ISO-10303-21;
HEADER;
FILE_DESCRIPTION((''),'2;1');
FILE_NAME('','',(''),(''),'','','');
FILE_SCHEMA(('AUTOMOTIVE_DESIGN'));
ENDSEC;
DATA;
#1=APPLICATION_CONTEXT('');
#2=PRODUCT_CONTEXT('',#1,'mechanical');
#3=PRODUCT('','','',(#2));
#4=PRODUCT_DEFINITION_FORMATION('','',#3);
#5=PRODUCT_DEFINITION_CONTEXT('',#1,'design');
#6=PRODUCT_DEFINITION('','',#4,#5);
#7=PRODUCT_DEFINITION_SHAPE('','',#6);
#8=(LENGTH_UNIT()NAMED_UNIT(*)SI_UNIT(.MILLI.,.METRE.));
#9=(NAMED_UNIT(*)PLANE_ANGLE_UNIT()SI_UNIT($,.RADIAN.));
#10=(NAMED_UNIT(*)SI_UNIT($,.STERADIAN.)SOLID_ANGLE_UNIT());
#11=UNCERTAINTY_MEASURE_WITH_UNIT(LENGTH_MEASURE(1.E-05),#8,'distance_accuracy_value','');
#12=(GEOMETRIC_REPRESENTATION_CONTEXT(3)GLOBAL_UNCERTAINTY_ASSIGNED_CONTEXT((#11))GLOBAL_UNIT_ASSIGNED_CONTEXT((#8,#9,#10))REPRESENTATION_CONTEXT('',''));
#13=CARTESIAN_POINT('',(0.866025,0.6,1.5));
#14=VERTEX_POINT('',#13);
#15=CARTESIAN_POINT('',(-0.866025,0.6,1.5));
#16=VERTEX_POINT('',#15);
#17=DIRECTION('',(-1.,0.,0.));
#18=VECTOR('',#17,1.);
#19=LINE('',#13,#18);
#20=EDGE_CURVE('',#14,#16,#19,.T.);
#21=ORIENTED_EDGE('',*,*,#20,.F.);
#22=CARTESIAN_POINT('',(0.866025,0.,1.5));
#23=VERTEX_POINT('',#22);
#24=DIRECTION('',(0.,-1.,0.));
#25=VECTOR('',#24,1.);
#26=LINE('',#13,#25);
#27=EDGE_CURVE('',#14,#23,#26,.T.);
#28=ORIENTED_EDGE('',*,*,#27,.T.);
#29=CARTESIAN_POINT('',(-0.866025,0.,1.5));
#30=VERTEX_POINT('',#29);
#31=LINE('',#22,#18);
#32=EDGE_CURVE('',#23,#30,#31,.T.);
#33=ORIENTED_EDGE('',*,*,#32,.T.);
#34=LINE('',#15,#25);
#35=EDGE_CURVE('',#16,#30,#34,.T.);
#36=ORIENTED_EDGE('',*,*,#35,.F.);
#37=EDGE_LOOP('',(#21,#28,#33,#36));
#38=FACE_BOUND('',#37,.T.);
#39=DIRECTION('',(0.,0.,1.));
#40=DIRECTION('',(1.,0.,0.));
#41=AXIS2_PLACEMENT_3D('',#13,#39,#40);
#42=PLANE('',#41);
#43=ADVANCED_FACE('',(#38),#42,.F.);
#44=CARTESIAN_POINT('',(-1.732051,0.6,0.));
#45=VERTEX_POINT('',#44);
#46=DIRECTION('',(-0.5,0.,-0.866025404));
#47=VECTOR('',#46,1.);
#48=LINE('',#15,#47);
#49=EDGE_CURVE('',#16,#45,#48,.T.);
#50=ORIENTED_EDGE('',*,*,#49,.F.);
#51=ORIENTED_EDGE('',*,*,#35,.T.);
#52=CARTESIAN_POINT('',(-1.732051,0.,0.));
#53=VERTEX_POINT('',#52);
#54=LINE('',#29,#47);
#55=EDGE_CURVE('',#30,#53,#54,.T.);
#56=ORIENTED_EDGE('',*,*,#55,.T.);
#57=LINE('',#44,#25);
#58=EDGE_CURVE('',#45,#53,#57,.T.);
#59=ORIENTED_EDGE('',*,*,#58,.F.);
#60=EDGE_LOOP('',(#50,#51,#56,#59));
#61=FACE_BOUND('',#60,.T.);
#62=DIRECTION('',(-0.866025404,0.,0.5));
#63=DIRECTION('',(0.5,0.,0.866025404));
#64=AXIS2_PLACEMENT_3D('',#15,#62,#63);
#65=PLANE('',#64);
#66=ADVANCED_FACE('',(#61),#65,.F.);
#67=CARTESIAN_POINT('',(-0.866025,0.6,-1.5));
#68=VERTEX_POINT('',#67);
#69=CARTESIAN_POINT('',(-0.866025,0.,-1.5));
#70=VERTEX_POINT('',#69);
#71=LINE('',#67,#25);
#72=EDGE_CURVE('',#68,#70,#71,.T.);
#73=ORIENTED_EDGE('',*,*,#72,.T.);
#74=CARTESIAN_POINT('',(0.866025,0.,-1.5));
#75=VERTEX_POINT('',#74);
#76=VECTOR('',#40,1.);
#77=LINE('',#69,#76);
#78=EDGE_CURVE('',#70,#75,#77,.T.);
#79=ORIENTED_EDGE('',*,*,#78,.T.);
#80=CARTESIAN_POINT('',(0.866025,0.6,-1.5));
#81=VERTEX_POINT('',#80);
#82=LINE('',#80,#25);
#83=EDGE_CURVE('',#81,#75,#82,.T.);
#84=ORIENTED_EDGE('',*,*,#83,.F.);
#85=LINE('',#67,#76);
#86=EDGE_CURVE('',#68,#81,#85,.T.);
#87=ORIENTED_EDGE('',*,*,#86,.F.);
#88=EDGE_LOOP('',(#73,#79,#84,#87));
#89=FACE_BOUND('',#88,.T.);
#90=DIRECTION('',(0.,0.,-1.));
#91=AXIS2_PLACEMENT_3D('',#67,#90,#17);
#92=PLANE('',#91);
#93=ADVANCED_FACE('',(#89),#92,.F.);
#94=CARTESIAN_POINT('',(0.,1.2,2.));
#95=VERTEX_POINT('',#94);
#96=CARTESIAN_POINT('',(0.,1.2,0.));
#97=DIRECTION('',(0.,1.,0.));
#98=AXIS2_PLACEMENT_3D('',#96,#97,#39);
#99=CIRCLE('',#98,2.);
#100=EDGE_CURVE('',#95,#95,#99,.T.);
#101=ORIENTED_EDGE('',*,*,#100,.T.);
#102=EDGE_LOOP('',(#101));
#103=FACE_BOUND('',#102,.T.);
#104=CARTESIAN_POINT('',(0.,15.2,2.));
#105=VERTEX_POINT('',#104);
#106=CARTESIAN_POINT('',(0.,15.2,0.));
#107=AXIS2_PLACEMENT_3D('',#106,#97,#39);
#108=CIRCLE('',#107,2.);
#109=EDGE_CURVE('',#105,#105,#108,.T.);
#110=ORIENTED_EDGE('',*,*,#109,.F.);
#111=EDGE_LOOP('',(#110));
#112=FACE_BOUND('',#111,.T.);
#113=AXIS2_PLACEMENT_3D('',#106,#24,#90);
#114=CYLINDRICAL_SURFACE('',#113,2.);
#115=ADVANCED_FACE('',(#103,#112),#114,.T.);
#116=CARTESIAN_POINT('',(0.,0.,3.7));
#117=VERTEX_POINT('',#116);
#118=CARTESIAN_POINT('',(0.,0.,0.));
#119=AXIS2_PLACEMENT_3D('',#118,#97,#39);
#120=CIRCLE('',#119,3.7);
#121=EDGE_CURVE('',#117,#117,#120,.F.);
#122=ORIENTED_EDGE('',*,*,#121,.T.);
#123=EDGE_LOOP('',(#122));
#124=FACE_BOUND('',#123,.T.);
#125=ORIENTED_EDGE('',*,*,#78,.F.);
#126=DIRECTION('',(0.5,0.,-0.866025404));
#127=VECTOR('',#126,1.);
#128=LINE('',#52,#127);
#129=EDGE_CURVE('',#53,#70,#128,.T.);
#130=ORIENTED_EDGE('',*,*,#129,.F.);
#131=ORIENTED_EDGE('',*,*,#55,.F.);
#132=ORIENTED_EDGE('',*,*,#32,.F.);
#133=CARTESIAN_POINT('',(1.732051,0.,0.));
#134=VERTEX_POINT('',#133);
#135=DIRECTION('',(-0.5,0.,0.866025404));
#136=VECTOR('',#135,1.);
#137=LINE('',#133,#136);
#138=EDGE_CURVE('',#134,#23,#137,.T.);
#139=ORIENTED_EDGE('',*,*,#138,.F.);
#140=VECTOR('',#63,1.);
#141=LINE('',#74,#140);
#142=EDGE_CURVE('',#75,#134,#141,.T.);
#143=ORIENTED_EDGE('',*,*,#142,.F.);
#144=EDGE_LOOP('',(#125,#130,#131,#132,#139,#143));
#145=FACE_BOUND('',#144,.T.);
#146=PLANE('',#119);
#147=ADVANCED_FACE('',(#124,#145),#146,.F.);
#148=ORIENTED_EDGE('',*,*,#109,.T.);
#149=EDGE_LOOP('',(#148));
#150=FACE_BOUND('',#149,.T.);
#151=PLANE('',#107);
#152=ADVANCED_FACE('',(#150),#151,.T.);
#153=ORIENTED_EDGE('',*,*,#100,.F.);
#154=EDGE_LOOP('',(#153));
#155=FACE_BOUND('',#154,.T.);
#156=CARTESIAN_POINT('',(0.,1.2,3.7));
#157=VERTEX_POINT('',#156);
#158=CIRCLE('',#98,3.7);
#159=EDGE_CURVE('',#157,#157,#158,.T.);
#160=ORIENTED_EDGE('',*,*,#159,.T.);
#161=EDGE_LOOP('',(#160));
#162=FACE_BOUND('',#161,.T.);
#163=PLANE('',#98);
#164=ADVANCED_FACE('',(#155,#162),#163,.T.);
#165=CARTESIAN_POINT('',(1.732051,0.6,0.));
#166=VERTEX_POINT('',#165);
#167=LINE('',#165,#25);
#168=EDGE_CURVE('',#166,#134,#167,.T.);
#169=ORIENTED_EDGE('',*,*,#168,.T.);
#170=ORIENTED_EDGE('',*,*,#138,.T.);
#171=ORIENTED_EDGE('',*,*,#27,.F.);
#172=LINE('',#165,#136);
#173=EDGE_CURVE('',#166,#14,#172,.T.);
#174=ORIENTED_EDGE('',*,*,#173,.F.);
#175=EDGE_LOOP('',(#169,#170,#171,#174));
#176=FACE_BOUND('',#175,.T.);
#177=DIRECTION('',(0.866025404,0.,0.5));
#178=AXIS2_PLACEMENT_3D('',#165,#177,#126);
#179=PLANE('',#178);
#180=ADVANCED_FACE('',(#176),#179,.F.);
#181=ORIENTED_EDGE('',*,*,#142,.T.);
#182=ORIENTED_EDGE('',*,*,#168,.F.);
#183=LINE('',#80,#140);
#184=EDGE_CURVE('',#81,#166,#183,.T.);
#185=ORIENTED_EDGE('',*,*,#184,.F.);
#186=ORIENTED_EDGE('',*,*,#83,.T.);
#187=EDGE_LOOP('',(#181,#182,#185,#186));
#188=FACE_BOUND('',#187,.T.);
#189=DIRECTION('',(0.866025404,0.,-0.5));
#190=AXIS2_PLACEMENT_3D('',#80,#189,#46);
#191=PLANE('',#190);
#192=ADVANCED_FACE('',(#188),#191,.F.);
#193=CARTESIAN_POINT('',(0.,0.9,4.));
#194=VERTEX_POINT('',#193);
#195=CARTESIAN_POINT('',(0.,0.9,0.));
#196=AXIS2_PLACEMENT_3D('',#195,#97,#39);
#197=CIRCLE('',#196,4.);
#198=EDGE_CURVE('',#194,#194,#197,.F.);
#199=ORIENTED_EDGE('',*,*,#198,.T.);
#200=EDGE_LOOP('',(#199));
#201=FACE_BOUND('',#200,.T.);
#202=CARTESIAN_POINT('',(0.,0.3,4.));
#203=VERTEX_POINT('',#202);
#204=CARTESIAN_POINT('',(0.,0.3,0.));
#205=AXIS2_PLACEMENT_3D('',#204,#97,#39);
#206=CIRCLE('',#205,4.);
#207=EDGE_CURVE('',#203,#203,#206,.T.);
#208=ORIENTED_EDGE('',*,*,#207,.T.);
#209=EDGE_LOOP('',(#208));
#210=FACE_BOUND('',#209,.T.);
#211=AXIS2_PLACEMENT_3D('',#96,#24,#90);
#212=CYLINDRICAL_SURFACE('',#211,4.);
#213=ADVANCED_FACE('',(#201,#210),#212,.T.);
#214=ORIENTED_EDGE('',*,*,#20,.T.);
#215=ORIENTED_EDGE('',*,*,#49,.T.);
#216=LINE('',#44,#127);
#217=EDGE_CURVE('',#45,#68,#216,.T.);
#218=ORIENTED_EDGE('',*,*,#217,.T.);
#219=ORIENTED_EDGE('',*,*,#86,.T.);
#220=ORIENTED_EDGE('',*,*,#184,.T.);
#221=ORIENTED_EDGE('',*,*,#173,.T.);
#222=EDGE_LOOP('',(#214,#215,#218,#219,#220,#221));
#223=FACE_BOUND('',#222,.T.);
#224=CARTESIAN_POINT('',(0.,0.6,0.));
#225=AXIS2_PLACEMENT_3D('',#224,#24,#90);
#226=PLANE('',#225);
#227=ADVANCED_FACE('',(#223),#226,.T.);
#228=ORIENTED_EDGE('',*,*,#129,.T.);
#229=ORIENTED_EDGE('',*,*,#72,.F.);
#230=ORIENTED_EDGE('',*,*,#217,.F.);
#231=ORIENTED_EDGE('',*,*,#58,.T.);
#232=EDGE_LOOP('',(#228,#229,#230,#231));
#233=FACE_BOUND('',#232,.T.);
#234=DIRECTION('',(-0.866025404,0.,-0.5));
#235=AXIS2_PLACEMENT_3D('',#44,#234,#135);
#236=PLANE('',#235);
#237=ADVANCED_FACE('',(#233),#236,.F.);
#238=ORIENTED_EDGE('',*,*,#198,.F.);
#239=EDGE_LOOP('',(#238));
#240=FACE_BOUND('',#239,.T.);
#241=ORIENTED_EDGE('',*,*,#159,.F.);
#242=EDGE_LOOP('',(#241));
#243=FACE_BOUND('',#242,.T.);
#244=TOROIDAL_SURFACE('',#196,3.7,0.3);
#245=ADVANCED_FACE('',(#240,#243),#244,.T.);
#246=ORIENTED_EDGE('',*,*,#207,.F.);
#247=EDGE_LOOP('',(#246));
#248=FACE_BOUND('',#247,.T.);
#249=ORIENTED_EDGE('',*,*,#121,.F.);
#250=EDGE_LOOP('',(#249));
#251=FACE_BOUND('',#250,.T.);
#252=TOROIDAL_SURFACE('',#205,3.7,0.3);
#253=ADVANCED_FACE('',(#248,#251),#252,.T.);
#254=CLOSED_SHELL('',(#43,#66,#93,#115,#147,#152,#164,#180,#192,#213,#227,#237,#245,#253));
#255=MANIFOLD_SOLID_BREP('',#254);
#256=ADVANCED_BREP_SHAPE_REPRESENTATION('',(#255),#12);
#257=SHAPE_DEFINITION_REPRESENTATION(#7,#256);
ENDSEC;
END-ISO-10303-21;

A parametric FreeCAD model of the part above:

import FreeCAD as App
import Part
import Sketcher

V = App.Vector
Q = App.Units.Quantity


def edges_at(feature, points):
    """Names of the edges that pass closest to the given points."""
    edges = feature.Shape.Edges
    near = lambda p: min(range(len(edges)), key=lambda i: edges[i].distToShape(Part.Vertex(*p))[0])
    return sorted({f"Edge{near(p) + 1}" for p in points})


def add_polygon(sketch, points):
    """Adds a closed chain of lines whose ends are joined by coincident constraints."""
    first, n = sketch.GeometryCount, len(points)
    for a, b in zip(points, points[1:] + points[:1]):
        sketch.addGeometry(Part.LineSegment(App.Vector(*a, 0), App.Vector(*b, 0)), False)
    for i in range(n):
        sketch.addConstraint(Sketcher.Constraint("Coincident", first + i, 2, first + (i + 1) % n, 1))

doc = App.newDocument("Part")
params = doc.addObject("Spreadsheet::Sheet", "Params")
for row, (alias, value) in enumerate([
    ("sketch1_diameter", "8 mm"),
    ("pad1_length", "1.2 mm"),
    ("sketch2_diameter", "4 mm"),
    ("pad2_length", "14 mm"),
    ("fillet_radius", "0.3 mm"),
    ("pocket1_length", "0.6 mm"),
], start=1):
    params.set(f"A{row}", alias)
    params.set(f"B{row}", "=" + value)
    params.setAlias(f"B{row}", alias)

body = doc.addObject("PartDesign::Body", "Body")

sketch1 = body.newObject("Sketcher::SketchObject", "Sketch")
sketch1.AttachmentSupport = (doc.getObject("XZ_Plane"), [""])
sketch1.MapMode = "FlatFace"
sketch1.addGeometry(Part.Circle(V(0, 0, 0), V(0, 0, 1), 4), False)
sketch1.addConstraint([
    Sketcher.Constraint("Coincident", 0, 3, -1, 1),
    Sketcher.Constraint("Diameter", 0, Q("8 mm")),
])
sketch1.setExpression("Constraints[1]", "Params.sketch1_diameter")
pad1 = body.newObject("PartDesign::Pad", "Pad")
pad1.Profile = sketch1
pad1.setExpression("Length", "Params.pad1_length")
pad1.Reversed = True

sketch2 = body.newObject("Sketcher::SketchObject", "Sketch001")
sketch2.AttachmentSupport = (doc.getObject("XZ_Plane"), [""])
sketch2.MapMode = "FlatFace"
sketch2.AttachmentOffset = App.Placement(V(0, 0, -1.2), App.Rotation())
sketch2.addGeometry(Part.Circle(V(0, 0, 0), V(0, 0, 1), 2), False)
sketch2.addConstraint([
    Sketcher.Constraint("Coincident", 0, 3, -1, 1),
    Sketcher.Constraint("Diameter", 0, Q("4 mm")),
])
sketch2.setExpression("Constraints[1]", "Params.sketch2_diameter")
pad2 = body.newObject("PartDesign::Pad", "Pad001")
pad2.Profile = sketch2
pad2.setExpression("Length", "Params.pad2_length")
pad2.Reversed = True
doc.recompute()

fillet = body.newObject("PartDesign::Fillet", "Fillet")
fillet.Base = (pad2, edges_at(pad2, [(0, 0, -4), (0, 1.2, -4)]))
fillet.setExpression("Radius", "Params.fillet_radius")

sketch3 = body.newObject("Sketcher::SketchObject", "Sketch002")
sketch3.AttachmentSupport = (doc.getObject("XZ_Plane"), [""])
sketch3.MapMode = "FlatFace"
add_polygon(sketch3, [(1.7, 0), (0.9, 1.5), (-0.9, 1.5), (-1.7, 0), (-0.9, -1.5), (0.9, -1.5)])
sketch3.addConstraint([
    Sketcher.Constraint("Horizontal", 1),
    Sketcher.Constraint("Horizontal", 4),
    Sketcher.Constraint("Symmetric", 0, 2, 3, 2, -1, 1),
    Sketcher.Constraint("Symmetric", 2, 2, 5, 2, -1, 1),
    Sketcher.Constraint("PointOnObject", 2, 2, -1),
    Sketcher.Constraint("Parallel", 2, 5),
    Sketcher.Constraint("Vertical", 1, 2, 3, 2),
    Sketcher.Constraint("Angle", 0, Q("120 deg")),
    Sketcher.Constraint("DistanceY", 3, 2, 1, 2, Q("3 mm")),
    Sketcher.Constraint("DistanceX", 1, 2, 1, 1, Q("1.732051 mm")),
])
pocket1 = body.newObject("PartDesign::Pocket", "Pocket")
pocket1.Profile = sketch3
pocket1.setExpression("Length", "Params.pocket1_length")

doc.recompute()
